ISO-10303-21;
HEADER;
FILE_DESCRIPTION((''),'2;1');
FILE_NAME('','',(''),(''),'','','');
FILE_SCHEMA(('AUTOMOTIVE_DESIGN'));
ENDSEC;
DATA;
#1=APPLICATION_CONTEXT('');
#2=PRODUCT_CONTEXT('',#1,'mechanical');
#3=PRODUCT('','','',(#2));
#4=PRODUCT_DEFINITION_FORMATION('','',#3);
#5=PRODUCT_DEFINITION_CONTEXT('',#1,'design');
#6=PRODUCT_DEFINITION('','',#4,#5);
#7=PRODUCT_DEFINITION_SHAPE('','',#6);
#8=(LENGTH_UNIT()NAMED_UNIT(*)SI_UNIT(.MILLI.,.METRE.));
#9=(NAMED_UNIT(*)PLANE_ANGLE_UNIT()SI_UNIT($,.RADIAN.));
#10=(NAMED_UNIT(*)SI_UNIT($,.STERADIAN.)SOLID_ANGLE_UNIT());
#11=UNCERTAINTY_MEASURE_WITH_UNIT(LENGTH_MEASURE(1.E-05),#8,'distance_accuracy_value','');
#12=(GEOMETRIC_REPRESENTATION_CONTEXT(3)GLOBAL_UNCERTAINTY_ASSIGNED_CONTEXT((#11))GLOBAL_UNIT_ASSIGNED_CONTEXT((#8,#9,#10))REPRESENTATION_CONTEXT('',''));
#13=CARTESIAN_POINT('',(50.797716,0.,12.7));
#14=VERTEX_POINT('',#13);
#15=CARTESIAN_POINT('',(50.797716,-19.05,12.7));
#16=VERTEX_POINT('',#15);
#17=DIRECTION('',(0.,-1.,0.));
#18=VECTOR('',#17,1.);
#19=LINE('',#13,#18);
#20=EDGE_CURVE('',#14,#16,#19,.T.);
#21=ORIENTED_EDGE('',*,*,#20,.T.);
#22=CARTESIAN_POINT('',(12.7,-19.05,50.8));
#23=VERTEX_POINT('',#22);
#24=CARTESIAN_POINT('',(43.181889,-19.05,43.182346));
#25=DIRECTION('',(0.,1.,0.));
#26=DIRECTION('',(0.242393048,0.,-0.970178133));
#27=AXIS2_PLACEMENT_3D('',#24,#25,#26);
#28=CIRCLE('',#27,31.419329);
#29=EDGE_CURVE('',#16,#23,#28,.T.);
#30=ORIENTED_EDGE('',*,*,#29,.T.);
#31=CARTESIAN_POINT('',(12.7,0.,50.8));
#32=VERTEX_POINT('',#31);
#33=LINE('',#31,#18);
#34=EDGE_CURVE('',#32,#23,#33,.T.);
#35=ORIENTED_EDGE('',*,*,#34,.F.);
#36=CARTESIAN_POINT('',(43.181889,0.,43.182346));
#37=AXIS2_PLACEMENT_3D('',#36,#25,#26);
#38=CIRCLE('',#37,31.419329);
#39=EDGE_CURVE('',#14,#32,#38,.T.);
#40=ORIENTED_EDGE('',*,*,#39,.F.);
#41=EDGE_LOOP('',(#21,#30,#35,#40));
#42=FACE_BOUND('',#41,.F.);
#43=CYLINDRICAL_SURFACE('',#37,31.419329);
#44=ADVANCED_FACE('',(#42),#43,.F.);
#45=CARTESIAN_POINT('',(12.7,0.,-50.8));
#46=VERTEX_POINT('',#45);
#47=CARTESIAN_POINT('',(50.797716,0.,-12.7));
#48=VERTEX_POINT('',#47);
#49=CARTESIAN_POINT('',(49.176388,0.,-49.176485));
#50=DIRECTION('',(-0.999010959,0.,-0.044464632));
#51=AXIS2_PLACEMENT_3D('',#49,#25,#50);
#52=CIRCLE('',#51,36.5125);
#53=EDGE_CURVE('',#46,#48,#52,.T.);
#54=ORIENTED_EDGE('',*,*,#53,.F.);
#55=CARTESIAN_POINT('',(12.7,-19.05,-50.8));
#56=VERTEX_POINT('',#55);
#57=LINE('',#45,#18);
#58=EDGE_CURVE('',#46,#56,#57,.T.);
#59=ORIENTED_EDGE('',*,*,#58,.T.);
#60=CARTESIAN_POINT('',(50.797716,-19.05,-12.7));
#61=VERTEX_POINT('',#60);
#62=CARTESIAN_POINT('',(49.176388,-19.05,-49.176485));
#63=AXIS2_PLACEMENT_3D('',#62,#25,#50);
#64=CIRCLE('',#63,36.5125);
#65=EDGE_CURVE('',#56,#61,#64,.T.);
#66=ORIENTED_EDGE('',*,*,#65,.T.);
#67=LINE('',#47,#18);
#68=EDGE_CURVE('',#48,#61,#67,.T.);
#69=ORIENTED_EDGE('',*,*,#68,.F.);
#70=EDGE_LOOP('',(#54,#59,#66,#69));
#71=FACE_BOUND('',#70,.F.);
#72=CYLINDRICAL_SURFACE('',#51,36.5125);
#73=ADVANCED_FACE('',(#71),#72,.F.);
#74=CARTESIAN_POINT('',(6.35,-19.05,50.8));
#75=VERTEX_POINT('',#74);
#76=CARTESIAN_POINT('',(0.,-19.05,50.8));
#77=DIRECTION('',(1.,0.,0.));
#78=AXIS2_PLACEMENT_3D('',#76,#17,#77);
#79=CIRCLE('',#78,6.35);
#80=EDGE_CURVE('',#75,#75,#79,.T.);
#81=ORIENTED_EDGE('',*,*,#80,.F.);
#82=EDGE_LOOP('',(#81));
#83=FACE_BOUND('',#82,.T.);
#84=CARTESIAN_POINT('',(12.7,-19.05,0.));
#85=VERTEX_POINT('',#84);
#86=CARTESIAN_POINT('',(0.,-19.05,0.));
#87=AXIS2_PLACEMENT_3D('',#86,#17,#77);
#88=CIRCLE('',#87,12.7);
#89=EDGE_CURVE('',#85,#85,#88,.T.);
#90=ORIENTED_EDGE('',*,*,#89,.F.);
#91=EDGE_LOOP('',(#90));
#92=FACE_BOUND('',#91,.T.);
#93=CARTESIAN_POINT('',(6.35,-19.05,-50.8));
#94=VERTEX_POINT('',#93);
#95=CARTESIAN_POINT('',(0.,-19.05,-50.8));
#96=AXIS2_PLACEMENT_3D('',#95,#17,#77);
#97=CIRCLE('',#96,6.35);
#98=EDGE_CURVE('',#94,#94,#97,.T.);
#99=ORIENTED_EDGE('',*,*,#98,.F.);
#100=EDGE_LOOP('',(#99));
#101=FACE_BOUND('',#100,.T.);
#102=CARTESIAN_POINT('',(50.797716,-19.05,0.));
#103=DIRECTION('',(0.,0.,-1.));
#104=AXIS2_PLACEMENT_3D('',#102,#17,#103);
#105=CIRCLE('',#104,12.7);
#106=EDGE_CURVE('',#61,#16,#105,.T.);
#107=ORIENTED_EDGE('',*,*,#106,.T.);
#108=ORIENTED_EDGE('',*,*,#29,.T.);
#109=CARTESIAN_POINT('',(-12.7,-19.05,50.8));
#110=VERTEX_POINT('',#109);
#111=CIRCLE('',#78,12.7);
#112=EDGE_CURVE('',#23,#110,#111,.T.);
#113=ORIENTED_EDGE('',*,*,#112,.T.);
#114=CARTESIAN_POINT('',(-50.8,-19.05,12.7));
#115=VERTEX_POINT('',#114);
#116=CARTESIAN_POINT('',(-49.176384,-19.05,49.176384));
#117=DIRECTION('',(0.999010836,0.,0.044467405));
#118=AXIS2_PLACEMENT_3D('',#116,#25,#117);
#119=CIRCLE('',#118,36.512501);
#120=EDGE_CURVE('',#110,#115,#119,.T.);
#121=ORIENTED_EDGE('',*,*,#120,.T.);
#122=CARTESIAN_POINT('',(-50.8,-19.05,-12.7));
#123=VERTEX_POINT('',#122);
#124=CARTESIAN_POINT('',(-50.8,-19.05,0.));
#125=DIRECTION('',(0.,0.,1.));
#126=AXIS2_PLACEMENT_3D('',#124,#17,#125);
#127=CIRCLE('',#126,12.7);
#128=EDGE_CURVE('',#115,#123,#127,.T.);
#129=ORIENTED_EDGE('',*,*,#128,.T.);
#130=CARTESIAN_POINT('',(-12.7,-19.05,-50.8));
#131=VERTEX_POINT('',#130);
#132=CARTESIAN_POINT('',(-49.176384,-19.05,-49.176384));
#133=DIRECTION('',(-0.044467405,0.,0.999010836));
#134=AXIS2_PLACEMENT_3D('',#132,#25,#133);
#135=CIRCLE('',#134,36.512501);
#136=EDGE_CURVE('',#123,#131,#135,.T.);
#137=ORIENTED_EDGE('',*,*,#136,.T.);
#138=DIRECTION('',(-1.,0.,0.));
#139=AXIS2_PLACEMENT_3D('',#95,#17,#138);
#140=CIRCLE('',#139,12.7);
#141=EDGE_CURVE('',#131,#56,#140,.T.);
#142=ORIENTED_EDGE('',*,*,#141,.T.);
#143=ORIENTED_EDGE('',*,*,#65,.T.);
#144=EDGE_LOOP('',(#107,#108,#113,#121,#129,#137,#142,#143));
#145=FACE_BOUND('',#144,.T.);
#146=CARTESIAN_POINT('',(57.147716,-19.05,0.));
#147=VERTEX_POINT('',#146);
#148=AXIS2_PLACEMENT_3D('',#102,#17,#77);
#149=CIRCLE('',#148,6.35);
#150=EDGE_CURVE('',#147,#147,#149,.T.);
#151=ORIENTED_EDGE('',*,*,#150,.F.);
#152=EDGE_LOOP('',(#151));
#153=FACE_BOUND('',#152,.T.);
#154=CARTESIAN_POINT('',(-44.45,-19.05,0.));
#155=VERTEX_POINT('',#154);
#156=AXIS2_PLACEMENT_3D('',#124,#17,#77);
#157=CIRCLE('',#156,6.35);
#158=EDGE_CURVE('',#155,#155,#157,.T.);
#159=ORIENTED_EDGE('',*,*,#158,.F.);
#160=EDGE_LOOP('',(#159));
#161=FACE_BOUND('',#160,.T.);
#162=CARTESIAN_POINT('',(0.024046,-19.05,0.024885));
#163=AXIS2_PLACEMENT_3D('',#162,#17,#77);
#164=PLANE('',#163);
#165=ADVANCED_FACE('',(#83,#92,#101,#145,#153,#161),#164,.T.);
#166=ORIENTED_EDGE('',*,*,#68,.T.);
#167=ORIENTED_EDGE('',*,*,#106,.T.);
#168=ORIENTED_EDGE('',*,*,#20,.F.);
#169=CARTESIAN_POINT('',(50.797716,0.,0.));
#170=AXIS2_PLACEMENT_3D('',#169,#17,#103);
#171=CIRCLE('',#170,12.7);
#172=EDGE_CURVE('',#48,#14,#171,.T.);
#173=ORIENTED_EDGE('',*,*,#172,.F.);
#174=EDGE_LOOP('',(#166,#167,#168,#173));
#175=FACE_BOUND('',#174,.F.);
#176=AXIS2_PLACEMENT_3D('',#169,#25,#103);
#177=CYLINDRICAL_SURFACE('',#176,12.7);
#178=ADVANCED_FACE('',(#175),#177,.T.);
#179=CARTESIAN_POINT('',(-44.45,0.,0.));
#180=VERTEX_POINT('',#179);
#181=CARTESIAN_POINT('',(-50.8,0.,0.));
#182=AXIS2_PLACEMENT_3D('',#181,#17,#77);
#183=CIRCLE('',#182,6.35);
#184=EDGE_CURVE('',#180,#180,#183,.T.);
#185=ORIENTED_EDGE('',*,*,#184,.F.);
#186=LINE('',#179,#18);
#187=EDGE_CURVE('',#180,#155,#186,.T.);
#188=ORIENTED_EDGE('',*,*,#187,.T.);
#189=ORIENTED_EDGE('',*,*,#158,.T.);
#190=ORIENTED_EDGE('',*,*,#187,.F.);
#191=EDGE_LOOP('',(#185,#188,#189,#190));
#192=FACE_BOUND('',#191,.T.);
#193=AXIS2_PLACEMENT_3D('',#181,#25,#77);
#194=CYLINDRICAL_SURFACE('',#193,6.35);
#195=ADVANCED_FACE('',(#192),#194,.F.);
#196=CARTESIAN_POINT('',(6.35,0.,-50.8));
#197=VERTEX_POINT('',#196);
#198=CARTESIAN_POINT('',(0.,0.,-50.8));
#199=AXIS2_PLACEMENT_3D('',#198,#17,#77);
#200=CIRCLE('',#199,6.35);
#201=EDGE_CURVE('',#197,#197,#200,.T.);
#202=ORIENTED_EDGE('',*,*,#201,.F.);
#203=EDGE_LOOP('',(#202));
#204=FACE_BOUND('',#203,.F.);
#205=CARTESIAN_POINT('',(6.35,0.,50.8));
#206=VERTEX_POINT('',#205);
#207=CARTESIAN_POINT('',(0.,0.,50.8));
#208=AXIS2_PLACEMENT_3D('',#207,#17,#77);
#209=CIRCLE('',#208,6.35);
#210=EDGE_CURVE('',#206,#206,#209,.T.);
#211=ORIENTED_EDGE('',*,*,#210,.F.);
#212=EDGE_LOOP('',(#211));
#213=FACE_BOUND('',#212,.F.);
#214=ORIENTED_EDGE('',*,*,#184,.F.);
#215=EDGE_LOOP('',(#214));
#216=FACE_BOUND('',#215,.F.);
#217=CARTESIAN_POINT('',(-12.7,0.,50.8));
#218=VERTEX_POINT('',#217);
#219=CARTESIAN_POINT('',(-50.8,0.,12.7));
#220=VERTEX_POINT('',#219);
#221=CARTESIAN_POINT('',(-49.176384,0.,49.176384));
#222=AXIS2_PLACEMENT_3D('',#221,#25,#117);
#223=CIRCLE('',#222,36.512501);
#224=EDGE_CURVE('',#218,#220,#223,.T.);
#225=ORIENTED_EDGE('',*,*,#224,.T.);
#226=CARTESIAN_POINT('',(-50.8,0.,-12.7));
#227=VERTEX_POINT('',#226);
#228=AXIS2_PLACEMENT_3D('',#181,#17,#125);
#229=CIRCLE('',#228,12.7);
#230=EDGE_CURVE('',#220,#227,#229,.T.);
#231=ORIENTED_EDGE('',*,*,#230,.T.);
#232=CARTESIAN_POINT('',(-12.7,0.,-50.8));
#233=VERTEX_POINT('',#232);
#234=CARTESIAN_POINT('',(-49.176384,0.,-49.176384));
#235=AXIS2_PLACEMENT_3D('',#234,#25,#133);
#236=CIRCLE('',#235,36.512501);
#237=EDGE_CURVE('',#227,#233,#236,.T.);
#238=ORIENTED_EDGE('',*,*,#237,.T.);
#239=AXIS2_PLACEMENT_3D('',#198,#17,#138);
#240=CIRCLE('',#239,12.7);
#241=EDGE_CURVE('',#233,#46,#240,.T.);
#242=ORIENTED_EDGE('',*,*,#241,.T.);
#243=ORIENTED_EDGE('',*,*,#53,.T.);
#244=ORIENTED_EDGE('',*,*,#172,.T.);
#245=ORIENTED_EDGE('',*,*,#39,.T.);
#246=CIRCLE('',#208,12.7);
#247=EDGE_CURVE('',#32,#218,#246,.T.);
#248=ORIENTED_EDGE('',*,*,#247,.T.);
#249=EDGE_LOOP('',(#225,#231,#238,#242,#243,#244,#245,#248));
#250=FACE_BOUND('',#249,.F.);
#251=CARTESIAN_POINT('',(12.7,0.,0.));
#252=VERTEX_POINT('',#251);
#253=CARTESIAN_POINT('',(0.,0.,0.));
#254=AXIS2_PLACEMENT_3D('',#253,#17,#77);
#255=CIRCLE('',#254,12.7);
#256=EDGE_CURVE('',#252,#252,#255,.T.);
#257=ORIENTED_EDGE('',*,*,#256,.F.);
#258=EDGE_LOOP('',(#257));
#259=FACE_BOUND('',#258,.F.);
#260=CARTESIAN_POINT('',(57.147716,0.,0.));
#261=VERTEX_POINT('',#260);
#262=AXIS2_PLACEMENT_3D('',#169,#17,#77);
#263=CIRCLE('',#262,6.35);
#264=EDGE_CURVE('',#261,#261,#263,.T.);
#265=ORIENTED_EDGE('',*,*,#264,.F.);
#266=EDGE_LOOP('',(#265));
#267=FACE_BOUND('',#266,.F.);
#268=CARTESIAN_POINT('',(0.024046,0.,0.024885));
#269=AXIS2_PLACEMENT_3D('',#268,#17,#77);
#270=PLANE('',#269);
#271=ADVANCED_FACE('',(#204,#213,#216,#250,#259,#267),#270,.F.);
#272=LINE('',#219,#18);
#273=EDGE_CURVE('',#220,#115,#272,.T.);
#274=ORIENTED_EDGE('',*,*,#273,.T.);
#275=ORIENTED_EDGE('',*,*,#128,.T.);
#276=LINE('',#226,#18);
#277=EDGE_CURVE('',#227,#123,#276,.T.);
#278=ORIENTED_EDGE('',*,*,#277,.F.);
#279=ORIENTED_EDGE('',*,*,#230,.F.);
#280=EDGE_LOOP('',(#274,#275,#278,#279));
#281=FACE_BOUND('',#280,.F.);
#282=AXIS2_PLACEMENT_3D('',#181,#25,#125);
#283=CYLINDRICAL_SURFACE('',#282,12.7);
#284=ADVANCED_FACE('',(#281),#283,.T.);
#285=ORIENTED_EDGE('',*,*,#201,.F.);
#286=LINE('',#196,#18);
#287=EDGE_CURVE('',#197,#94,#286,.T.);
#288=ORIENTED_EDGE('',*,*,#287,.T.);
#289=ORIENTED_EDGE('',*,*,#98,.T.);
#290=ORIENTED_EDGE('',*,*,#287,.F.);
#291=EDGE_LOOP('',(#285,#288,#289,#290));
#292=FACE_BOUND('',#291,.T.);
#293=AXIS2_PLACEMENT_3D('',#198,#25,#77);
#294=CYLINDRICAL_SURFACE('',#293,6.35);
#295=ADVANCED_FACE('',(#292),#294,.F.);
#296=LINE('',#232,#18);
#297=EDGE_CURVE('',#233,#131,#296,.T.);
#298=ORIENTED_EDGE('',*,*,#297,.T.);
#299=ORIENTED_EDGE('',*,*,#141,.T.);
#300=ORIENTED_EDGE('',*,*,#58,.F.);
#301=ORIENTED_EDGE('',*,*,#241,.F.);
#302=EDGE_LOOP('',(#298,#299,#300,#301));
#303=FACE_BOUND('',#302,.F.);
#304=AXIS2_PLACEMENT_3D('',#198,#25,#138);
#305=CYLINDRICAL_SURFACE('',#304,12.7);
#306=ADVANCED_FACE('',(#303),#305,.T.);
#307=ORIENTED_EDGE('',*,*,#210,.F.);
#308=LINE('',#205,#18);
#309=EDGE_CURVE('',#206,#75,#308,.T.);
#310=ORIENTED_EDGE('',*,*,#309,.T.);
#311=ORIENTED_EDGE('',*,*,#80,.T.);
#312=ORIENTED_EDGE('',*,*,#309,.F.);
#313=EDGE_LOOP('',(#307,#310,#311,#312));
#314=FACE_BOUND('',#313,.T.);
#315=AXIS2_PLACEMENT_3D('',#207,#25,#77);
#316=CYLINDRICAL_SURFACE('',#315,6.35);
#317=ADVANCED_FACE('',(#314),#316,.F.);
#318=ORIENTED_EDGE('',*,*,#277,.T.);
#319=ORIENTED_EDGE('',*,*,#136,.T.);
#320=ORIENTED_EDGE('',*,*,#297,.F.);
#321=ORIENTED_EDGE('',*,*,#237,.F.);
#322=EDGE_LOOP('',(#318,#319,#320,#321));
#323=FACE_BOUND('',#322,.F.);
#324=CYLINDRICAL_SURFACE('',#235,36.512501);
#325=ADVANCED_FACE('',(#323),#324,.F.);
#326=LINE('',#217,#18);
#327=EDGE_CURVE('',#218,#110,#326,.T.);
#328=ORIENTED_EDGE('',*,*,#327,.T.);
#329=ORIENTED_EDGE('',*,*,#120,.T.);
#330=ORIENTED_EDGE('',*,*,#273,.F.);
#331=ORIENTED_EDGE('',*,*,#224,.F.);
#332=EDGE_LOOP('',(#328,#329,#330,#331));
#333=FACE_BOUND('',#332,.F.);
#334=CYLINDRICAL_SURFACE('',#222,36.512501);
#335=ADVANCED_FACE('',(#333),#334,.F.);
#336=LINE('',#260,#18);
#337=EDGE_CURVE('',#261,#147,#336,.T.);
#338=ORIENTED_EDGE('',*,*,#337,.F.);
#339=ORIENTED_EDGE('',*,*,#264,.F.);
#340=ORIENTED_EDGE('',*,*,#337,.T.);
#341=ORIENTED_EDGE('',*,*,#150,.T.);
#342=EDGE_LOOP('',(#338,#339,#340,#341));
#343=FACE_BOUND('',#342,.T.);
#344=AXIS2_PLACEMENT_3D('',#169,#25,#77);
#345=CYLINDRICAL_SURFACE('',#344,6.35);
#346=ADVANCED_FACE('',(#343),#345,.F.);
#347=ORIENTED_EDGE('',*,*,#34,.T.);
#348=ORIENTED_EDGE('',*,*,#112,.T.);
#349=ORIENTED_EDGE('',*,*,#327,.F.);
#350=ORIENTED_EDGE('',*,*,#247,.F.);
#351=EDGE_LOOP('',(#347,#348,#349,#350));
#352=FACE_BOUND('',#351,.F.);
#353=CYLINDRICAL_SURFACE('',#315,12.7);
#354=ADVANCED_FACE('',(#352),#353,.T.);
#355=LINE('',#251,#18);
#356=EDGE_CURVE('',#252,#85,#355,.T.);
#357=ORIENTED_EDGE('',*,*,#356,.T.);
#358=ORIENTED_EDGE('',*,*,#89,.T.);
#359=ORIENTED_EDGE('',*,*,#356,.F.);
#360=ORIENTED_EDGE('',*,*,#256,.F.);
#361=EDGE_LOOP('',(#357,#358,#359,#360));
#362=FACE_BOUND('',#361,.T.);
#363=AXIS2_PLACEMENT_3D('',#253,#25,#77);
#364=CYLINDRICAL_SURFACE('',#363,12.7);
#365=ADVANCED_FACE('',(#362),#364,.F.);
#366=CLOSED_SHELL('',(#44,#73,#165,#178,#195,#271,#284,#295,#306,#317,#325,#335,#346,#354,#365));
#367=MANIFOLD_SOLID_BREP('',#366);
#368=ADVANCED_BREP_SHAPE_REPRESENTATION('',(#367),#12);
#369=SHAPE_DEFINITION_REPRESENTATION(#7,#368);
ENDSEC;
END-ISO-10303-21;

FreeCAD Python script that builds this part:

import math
import FreeCAD as App
import Part
import Sketcher
from FreeCAD import Vector
Q = App.Units.Quantity

doc = App.newDocument("Part")
params = doc.addObject("Spreadsheet::Sheet", "Params")
for row, (alias, value) in enumerate([
    ("sketch1_diameter", "1 in"),
    ("sketch1_diameter2", "0.5 in"),
    ("sketch1_radius", "1.4375 in"),
    ("pad1_length", "0.75 in"),
], start=1):
    params.set(f"A{row}", alias)
    params.set(f"B{row}", "=" + value)
    params.setAlias(f"B{row}", alias)

body = doc.addObject("PartDesign::Body", "Body")

# Sketch on XZ plane
sketch1 = doc.addObject("Sketcher::SketchObject", "Sketch")
body.addObject(sketch1)
sketch1.AttachmentSupport = (doc.XZ_Plane, [""])
sketch1.MapMode = "FlatFace"
sketch1.addGeometry([
    Part.ArcOfCircle(Part.Circle(Vector(-50.8, 0, 0), Vector(0, 0, 1), 12.7), math.radians(90), math.radians(270)),  # 0
    Part.ArcOfCircle(Part.Circle(Vector(-49.176384, -49.176384, 0), Vector(0, 0, 1), 36.512501), math.radians(-2.548635), math.radians(92.548635)),  # 1
    Part.ArcOfCircle(Part.Circle(Vector(0, -50.8, 0), Vector(0, 0, 1), 12.7), math.radians(180), math.radians(360)),  # 2
    Part.ArcOfCircle(Part.Circle(Vector(49.176388, -49.176485, 0), Vector(0, 0, 1), 36.5125), math.radians(87.454959), math.radians(182.548476)),  # 3
    Part.ArcOfCircle(Part.Circle(Vector(50.797716, 0, 0), Vector(0, 0, 1), 12.7), math.radians(-90), math.radians(90)),  # 4
    Part.ArcOfCircle(Part.Circle(Vector(43.181889, 43.182346, 0), Vector(0, 0, 1), 31.419329), math.radians(165.968742), math.radians(284.027823)),  # 5
    Part.ArcOfCircle(Part.Circle(Vector(0, 50.8, 0), Vector(0, 0, 1), 12.7), math.radians(0), math.radians(180)),  # 6
    Part.ArcOfCircle(Part.Circle(Vector(-49.176384, 49.176384, 0), Vector(0, 0, 1), 36.512501), math.radians(-92.548635), math.radians(2.548635)),  # 7
    Part.Circle(Vector(-50.8, 0, 0), Vector(0, 0, 1), 6.35),  # 8
    Part.Circle(Vector(0, -50.8, 0), Vector(0, 0, 1), 6.35),  # 9
    Part.Circle(Vector(0, 0, 0), Vector(0, 0, 1), 12.7),  # 10
    Part.Circle(Vector(50.797716, 0, 0), Vector(0, 0, 1), 6.35),  # 11
    Part.Circle(Vector(0, 50.8, 0), Vector(0, 0, 1), 6.35),  # 12
], False)
sketch1.addConstraint([
    Sketcher.Constraint("Coincident", 0, 2, 1, 2),
    Sketcher.Constraint("Coincident", 1, 1, 2, 1),
    Sketcher.Constraint("Coincident", 2, 2, 3, 2),
    Sketcher.Constraint("Coincident", 3, 1, 4, 1),
    Sketcher.Constraint("Coincident", 4, 2, 5, 2),
    Sketcher.Constraint("Coincident", 5, 1, 6, 1),
    Sketcher.Constraint("Coincident", 6, 2, 7, 2),
    Sketcher.Constraint("Coincident", 7, 1, 0, 1),
    Sketcher.Constraint("Coincident", 10, 3, -1, 1),
    Sketcher.Constraint("Coincident", 8, 3, 0, 3),
    Sketcher.Constraint("Coincident", 9, 3, 2, 3),
    Sketcher.Constraint("Coincident", 11, 3, 4, 3),
    Sketcher.Constraint("Coincident", 12, 3, 6, 3),
    Sketcher.Constraint("Equal", 0, 2),
    Sketcher.Constraint("Equal", 1, 3),
    Sketcher.Constraint("Equal", 2, 4),
    Sketcher.Constraint("Equal", 4, 6),
    Sketcher.Constraint("Equal", 3, 7),
    Sketcher.Constraint("Equal", 8, 9),
    Sketcher.Constraint("Equal", 6, 10),
    Sketcher.Constraint("Equal", 9, 11),
    Sketcher.Constraint("Equal", 11, 12),
    Sketcher.Constraint("Symmetric", 2, 3, 6, 3, -1, 1),
    Sketcher.Constraint("Symmetric", 1, 1, 2, 2, -2),
    Sketcher.Constraint("Symmetric", 1, 3, 7, 3, -1),
    Sketcher.Constraint("Symmetric", 3, 1, 4, 2, -1),
    Sketcher.Constraint("PointOnObject", 0, 3, -1),
    Sketcher.Constraint("Horizontal", 9, 3, 1, 1),
    Sketcher.Constraint("Horizontal", 12, 3, 5, 1),
    Sketcher.Constraint("Vertical", 8, 3, 0, 2),
    Sketcher.Constraint("Vertical", 11, 3, 3, 1),
    Sketcher.Constraint("Diameter", 10, Q("1 in")),
    Sketcher.Constraint("Diameter", 8, Q("0.5 in")),
    Sketcher.Constraint("DistanceX", 0, 3, -1, 1, Q("2 in")),
    Sketcher.Constraint("DistanceY", 2, 3, -1, 1, Q("2 in")),
    Sketcher.Constraint("Radius", 1, Q("1.4375 in")),
    Sketcher.Constraint("Radius", 5, Q("31.419329 mm")),
    Sketcher.Constraint("DistanceY", 3, 3, 1, 3, Q("0.000101 mm")),
])
sketch1.setExpression("Constraints[31]", "Params.sketch1_diameter")
sketch1.setExpression("Constraints[32]", "Params.sketch1_diameter2")
sketch1.setExpression("Constraints[35]", "Params.sketch1_radius")
pad1 = doc.addObject("PartDesign::Pad", "Pad")
body.addObject(pad1)
pad1.Profile = sketch1
pad1.setExpression("Length", "Params.pad1_length")

doc.recompute()
